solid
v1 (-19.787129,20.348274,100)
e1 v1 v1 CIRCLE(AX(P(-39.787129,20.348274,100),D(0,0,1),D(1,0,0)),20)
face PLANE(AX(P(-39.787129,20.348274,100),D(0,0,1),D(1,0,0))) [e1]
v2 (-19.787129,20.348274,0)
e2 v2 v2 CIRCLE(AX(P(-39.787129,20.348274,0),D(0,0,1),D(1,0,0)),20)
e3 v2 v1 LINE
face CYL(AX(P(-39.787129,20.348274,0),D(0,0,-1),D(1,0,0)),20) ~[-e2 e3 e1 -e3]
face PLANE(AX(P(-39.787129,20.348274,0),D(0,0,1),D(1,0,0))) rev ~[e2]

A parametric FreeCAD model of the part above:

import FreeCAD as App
import Part
import Sketcher
from FreeCAD import Vector
Q = App.Units.Quantity

doc = App.newDocument("Part")
body = doc.addObject("PartDesign::Body", "Body")

# Sketch on XY plane
sketch1 = doc.addObject("Sketcher::SketchObject", "Sketch")
body.addObject(sketch1)
sketch1.AttachmentSupport = (doc.XY_Plane, [""])
sketch1.MapMode = "FlatFace"
sketch1.addGeometry(Part.Circle(Vector(-39.787129, 20.348274, 0), Vector(0, 0, 1), 20), False)
sketch1.addConstraint([
    Sketcher.Constraint("Diameter", 0, Q("40 mm")),
    Sketcher.Constraint("DistanceX", 0, 3, -1, 1, Q("39.787129 mm")),
    Sketcher.Constraint("DistanceY", -1, 1, 0, 3, Q("20.348274 mm")),
])
pad1 = doc.addObject("PartDesign::Pad", "Pad")
body.addObject(pad1)
pad1.Profile = sketch1
pad1.Length = 100

doc.recompute()
